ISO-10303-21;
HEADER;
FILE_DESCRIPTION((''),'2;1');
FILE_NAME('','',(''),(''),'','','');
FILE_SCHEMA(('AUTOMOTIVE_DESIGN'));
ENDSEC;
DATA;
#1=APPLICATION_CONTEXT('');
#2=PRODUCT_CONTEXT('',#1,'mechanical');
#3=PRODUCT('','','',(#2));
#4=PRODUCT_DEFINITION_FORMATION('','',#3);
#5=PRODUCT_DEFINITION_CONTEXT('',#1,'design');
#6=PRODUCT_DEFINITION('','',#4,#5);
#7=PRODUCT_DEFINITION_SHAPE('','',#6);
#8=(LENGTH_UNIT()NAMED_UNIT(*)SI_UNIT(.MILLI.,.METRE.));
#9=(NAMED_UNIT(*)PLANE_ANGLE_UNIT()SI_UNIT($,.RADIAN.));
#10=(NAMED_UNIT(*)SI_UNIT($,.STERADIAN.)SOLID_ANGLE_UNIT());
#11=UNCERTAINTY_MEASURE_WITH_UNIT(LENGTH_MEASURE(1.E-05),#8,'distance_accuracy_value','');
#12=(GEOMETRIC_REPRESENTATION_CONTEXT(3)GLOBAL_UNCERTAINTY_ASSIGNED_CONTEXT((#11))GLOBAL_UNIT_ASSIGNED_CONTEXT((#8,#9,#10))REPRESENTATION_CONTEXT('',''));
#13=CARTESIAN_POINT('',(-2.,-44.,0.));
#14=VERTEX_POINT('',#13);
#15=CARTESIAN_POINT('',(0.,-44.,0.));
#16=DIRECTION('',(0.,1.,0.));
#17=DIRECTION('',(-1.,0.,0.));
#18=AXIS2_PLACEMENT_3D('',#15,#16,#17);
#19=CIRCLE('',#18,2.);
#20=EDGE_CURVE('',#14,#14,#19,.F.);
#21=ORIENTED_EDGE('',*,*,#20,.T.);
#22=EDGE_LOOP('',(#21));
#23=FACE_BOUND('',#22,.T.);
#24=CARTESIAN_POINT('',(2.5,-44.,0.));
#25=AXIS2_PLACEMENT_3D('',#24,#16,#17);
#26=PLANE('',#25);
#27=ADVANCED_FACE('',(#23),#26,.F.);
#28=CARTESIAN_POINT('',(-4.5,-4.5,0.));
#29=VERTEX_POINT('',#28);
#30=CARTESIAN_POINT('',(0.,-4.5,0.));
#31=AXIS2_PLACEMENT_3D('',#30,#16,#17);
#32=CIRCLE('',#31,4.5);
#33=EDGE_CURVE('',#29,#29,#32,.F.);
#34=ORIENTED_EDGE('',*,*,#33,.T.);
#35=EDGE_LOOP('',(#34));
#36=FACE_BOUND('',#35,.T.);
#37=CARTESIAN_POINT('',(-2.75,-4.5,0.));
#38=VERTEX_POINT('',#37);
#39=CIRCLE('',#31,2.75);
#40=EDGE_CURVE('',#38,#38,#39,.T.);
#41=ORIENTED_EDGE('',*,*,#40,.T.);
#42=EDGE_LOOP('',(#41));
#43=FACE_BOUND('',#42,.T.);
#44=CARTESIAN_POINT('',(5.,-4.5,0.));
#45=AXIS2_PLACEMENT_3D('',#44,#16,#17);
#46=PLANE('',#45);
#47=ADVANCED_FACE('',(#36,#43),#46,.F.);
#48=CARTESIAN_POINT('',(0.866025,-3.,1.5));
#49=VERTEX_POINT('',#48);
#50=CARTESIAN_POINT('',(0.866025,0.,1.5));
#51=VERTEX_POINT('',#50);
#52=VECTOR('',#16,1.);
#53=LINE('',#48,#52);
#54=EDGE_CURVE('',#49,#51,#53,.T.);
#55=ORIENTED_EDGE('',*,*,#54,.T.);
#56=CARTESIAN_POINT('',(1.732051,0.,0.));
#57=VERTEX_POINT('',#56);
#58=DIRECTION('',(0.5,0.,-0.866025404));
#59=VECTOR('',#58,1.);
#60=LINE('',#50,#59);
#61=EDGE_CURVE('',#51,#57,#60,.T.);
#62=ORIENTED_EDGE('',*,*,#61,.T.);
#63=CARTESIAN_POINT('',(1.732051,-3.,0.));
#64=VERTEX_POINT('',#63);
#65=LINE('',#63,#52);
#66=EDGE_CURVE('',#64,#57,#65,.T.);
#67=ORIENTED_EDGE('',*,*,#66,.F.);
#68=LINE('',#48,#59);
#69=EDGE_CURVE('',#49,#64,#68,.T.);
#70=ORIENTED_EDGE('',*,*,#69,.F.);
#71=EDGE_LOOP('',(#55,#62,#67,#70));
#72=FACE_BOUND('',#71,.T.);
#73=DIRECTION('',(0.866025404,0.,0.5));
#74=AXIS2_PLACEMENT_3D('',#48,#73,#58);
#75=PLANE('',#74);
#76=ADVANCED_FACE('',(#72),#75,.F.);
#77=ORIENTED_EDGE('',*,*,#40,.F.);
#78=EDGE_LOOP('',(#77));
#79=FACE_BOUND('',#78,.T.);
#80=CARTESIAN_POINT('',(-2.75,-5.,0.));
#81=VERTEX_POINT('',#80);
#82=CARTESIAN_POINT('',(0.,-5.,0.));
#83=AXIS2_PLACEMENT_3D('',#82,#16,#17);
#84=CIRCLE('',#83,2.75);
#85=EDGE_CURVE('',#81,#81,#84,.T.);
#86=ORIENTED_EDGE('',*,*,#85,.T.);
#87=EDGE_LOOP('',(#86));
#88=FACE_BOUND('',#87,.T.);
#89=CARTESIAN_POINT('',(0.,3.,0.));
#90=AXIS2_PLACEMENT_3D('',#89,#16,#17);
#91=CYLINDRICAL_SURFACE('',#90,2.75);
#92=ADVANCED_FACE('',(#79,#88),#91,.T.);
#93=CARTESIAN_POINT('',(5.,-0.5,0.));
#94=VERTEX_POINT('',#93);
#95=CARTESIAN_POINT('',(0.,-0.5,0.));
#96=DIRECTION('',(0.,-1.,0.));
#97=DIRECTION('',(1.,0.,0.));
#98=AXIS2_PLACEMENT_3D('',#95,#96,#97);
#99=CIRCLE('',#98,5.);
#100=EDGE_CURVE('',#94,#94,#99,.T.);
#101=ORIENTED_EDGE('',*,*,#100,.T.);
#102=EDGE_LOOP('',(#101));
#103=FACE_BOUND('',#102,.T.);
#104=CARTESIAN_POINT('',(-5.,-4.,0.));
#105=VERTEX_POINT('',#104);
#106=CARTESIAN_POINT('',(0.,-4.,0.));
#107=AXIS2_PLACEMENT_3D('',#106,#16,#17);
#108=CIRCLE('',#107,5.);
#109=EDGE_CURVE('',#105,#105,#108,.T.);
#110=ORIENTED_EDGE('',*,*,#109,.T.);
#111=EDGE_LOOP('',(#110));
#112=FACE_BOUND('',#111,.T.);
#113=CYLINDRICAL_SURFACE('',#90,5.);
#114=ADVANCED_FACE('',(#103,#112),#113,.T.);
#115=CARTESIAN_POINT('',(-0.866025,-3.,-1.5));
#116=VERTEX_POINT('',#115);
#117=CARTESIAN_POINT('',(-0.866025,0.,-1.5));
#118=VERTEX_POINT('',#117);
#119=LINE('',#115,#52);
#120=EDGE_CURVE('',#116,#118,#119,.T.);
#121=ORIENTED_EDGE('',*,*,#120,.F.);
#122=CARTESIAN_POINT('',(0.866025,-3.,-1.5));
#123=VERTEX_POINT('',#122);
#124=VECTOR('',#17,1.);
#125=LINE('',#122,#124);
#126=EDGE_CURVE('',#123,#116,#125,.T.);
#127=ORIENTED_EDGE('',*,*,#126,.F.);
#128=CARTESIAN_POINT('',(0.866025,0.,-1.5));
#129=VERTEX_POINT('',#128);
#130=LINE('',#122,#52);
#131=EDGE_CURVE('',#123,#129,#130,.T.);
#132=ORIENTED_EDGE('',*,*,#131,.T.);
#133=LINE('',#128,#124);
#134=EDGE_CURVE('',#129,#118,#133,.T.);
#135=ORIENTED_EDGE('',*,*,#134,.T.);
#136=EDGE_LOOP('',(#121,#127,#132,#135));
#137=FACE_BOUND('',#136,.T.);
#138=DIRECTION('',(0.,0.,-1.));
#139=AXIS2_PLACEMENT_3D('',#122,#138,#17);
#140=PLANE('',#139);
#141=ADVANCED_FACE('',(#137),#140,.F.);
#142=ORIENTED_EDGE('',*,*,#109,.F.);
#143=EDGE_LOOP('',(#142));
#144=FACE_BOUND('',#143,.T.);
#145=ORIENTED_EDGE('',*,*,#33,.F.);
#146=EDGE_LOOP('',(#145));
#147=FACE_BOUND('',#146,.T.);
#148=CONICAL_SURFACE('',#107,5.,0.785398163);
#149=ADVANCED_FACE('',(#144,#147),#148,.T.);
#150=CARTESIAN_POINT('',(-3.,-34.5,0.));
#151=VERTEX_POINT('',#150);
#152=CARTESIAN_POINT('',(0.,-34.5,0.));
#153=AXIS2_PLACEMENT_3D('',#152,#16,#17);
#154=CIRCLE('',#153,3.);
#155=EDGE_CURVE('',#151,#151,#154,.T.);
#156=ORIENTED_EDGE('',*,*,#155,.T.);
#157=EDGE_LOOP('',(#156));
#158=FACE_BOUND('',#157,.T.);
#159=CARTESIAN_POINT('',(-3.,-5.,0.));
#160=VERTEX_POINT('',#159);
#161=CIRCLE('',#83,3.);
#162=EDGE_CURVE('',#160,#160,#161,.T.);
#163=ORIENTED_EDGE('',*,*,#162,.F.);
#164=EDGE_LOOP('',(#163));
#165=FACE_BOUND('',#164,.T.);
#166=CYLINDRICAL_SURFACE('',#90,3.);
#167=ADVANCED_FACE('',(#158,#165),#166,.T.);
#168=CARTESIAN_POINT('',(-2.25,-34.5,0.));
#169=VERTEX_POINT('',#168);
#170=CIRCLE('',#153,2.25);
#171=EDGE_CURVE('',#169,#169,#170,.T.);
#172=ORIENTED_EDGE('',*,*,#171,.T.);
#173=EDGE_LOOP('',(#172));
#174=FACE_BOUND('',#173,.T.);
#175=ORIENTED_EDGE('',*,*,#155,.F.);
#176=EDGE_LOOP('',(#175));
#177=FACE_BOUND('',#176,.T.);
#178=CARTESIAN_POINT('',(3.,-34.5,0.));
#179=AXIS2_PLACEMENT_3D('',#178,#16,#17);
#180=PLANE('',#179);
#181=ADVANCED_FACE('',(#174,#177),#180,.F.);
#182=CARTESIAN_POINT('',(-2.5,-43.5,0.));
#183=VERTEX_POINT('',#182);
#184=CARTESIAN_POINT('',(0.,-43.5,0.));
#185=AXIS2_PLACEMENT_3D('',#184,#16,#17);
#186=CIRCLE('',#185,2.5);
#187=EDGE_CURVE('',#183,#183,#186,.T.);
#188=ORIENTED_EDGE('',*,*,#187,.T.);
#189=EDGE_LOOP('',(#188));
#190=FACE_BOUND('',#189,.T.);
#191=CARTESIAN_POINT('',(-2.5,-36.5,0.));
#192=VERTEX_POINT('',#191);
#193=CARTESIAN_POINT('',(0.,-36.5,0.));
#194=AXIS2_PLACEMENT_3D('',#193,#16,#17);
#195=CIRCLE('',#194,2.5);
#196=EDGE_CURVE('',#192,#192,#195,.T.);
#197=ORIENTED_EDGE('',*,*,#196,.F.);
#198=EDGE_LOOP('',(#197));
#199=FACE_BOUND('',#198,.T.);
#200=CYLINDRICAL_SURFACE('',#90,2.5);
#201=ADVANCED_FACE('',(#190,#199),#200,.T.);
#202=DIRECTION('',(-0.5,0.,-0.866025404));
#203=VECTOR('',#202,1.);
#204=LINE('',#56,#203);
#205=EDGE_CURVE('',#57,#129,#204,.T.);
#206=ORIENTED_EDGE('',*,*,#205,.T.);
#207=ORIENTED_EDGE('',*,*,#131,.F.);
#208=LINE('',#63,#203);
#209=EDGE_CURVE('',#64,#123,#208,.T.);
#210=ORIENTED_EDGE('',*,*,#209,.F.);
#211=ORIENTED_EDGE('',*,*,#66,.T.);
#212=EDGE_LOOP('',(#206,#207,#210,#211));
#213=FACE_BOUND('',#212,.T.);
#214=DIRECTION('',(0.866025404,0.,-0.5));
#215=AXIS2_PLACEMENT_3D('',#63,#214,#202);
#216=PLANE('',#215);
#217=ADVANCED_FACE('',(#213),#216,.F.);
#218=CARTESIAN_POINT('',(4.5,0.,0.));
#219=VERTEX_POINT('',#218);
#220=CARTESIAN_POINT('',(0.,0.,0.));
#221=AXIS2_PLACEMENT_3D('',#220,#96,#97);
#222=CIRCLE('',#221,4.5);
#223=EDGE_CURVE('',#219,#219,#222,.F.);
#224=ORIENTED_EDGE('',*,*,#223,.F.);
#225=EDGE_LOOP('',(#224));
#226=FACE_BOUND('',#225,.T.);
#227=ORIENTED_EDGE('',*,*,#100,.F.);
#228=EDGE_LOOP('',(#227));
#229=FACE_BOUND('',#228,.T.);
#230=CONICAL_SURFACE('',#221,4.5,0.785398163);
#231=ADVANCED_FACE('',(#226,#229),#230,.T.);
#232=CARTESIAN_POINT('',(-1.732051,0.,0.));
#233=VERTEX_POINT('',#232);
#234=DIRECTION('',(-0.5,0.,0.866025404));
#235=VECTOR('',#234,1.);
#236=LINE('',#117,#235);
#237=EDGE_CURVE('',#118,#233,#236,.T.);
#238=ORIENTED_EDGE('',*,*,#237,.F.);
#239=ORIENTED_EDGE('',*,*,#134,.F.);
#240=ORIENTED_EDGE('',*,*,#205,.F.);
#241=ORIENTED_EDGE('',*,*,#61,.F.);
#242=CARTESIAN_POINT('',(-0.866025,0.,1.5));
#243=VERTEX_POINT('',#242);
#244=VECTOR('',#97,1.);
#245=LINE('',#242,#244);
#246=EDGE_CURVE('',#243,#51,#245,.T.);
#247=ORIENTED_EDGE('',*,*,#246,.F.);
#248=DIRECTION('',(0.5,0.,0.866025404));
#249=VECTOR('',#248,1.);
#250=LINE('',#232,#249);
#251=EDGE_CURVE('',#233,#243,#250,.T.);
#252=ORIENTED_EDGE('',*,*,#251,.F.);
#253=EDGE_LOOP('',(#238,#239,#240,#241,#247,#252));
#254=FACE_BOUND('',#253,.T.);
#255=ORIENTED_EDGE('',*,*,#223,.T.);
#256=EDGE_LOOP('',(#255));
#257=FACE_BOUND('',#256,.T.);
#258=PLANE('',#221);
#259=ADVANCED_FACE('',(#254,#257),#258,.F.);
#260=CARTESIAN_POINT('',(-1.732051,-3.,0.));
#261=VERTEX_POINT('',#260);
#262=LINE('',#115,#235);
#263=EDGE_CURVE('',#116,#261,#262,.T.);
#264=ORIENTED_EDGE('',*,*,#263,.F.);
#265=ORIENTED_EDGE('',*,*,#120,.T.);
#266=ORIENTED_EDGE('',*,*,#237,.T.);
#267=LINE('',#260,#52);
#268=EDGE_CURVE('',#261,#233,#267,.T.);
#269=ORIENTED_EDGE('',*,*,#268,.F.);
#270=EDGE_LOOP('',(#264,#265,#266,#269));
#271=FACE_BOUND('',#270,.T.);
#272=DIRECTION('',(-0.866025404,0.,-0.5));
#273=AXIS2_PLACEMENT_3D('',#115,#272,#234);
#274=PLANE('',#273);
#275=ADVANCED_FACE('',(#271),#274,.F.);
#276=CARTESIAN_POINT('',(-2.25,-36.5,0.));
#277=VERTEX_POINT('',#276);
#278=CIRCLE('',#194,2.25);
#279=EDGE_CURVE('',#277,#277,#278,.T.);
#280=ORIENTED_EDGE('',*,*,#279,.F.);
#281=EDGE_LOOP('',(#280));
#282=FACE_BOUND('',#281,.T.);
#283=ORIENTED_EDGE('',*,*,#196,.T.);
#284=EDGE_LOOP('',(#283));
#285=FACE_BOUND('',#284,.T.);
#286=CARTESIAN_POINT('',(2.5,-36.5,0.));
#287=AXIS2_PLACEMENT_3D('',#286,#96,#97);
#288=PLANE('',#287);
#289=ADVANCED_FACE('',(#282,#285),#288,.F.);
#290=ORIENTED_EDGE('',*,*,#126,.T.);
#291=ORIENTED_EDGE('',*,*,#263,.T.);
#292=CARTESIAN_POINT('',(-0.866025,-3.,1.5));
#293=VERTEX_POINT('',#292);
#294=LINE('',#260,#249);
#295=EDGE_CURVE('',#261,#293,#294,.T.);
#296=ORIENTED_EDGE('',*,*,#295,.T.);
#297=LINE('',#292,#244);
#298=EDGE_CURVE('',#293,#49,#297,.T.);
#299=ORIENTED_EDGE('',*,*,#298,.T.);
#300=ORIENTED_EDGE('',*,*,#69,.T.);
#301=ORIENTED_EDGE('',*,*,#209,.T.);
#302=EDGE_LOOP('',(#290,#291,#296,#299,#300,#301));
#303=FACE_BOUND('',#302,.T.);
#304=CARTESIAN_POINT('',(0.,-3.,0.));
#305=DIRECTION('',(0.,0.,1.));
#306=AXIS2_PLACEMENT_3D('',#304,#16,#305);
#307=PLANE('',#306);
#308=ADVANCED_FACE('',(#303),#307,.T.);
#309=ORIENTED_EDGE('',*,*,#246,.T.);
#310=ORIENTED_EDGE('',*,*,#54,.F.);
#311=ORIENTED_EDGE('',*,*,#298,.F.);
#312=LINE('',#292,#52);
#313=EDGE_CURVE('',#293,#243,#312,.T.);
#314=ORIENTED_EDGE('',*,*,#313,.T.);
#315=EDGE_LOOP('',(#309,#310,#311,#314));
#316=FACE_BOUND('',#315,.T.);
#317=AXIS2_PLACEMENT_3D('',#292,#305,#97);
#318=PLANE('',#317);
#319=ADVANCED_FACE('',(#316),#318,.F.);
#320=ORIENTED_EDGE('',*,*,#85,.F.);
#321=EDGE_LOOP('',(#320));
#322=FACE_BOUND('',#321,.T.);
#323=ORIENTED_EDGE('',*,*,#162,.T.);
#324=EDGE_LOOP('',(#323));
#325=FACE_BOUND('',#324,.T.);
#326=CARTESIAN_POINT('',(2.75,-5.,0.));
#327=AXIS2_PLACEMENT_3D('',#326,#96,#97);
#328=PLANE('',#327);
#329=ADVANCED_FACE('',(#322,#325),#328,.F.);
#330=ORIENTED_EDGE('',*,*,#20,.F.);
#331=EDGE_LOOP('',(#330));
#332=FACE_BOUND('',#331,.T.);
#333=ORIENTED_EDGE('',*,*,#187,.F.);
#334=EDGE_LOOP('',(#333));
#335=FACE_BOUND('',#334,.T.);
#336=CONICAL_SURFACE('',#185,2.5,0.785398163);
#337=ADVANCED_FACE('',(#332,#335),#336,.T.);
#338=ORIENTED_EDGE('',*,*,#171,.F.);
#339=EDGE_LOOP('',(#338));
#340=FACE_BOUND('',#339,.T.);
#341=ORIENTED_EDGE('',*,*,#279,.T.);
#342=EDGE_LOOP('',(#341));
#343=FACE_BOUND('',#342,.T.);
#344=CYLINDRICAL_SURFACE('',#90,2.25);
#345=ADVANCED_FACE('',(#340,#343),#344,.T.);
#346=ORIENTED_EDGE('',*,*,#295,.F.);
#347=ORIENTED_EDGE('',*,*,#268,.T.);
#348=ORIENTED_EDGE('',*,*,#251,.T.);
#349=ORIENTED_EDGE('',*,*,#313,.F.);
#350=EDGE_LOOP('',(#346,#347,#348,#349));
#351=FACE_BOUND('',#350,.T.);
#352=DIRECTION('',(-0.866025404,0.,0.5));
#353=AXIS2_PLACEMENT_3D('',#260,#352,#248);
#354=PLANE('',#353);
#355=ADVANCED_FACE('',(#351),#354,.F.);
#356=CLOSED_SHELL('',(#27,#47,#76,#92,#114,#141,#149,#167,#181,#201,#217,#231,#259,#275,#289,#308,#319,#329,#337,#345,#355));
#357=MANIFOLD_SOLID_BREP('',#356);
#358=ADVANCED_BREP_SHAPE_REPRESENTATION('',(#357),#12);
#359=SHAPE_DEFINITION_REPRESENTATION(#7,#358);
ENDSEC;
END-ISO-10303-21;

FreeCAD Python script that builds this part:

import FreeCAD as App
import Part
import Sketcher
Q = App.Units.Quantity


def edges_at(feature, points):
    """Names of the edges that pass closest to the given points."""
    edges = feature.Shape.Edges
    near = lambda p: min(range(len(edges)), key=lambda i: edges[i].distToShape(Part.Vertex(*p))[0])
    return sorted({f"Edge{near(p) + 1}" for p in points})

doc = App.newDocument("Part")
params = doc.addObject("Spreadsheet::Sheet", "Params")
for row, (alias, value) in enumerate([
    ("sketch1_width", "5 mm"),
    ("sketch1_height", "44 mm"),
    ("sketch1_height2", "2 mm"),
    ("sketch1_width2", "2.5 mm"),
    ("sketch1_height3", "7.5 mm"),
    ("revolution_angle", "360 deg"),
    ("chamfer_size", "0.5 mm"),
    ("pocket1_length", "3 mm"),
], start=1):
    params.set(f"A{row}", alias)
    params.set(f"B{row}", "=" + value)
    params.setAlias(f"B{row}", alias)

body = doc.addObject("PartDesign::Body", "Body")

sketch1 = body.newObject("Sketcher::SketchObject", "Sketch")
sketch1.AttachmentSupport = (doc.getObject("XY_Plane"), [""])
sketch1.MapMode = "FlatFace"
sketch1.addGeometry([
    Part.LineSegment(App.Vector(5, 0, 0), App.Vector(0, 0, 0)),
    Part.LineSegment(App.Vector(0, 0, 0), App.Vector(0, -44, 0)),
    Part.LineSegment(App.Vector(0, -44, 0), App.Vector(2.5, -44, 0)),
    Part.LineSegment(App.Vector(2.5, -44, 0), App.Vector(2.5, -36.5, 0)),
    Part.LineSegment(App.Vector(2.5, -36.5, 0), App.Vector(2.25, -36.5, 0)),
    Part.LineSegment(App.Vector(2.25, -36.5, 0), App.Vector(2.25, -34.5, 0)),
    Part.LineSegment(App.Vector(2.25, -34.5, 0), App.Vector(3, -34.5, 0)),
    Part.LineSegment(App.Vector(3, -34.5, 0), App.Vector(3, -5, 0)),
    Part.LineSegment(App.Vector(3, -5, 0), App.Vector(2.75, -5, 0)),
    Part.LineSegment(App.Vector(2.75, -5, 0), App.Vector(2.75, -4.5, 0)),
    Part.LineSegment(App.Vector(2.75, -4.5, 0), App.Vector(5, -4.5, 0)),
    Part.LineSegment(App.Vector(5, -4.5, 0), App.Vector(5, 0, 0)),
], False)
sketch1.addConstraint([
    Sketcher.Constraint("Coincident", 0, 2, 1, 1),
    Sketcher.Constraint("Coincident", 1, 2, 2, 1),
    Sketcher.Constraint("Coincident", 2, 2, 3, 1),
    Sketcher.Constraint("Coincident", 3, 2, 4, 1),
    Sketcher.Constraint("Coincident", 4, 2, 5, 1),
    Sketcher.Constraint("Coincident", 5, 2, 6, 1),
    Sketcher.Constraint("Coincident", 6, 2, 7, 1),
    Sketcher.Constraint("Coincident", 7, 2, 8, 1),
    Sketcher.Constraint("Coincident", 8, 2, 9, 1),
    Sketcher.Constraint("Coincident", 9, 2, 10, 1),
    Sketcher.Constraint("Coincident", 10, 2, 11, 1),
    Sketcher.Constraint("Coincident", 11, 2, 0, 1),
    Sketcher.Constraint("Horizontal", 0),
    Sketcher.Constraint("Vertical", 1),
    Sketcher.Constraint("Horizontal", 2),
    Sketcher.Constraint("Vertical", 3),
    Sketcher.Constraint("Horizontal", 4),
    Sketcher.Constraint("Vertical", 5),
    Sketcher.Constraint("Horizontal", 6),
    Sketcher.Constraint("Vertical", 7),
    Sketcher.Constraint("Horizontal", 8),
    Sketcher.Constraint("Vertical", 9),
    Sketcher.Constraint("Horizontal", 10),
    Sketcher.Constraint("Vertical", 11),
    Sketcher.Constraint("Coincident", 0, 2, -1, 1),
    Sketcher.Constraint("Equal", 4, 8),
    Sketcher.Constraint("DistanceX", 0, 2, 0, 1, Q("5 mm")),
    Sketcher.Constraint("DistanceY", 1, 2, 1, 1, Q("44 mm")),
    Sketcher.Constraint("DistanceY", 5, 1, 5, 2, Q("2 mm")),
    Sketcher.Constraint("DistanceX", 2, 1, 2, 2, Q("2.5 mm")),
    Sketcher.Constraint("DistanceY", 3, 1, 3, 2, Q("7.5 mm")),
    Sketcher.Constraint("DistanceY", 7, 1, 7, 2, Q("29.5 mm")),
    Sketcher.Constraint("DistanceY", 9, 1, 9, 2, Q("0.5 mm")),
    Sketcher.Constraint("DistanceX", -1, 1, 6, 2, Q("3 mm")),
    Sketcher.Constraint("DistanceX", 4, 2, 4, 1, Q("0.25 mm")),
])
sketch1.setExpression("Constraints[26]", "Params.sketch1_width")
sketch1.setExpression("Constraints[27]", "Params.sketch1_height")
sketch1.setExpression("Constraints[28]", "Params.sketch1_height2")
sketch1.setExpression("Constraints[29]", "Params.sketch1_width2")
sketch1.setExpression("Constraints[30]", "Params.sketch1_height3")
revolution = body.newObject("PartDesign::Revolution", "Revolution")
revolution.Profile = sketch1
revolution.ReferenceAxis = (sketch1, ["V_Axis"])
revolution.setExpression("Angle", "Params.revolution_angle")
doc.recompute()

chamfer = body.newObject("PartDesign::Chamfer", "Chamfer")
chamfer.Base = (revolution, edges_at(revolution, [(5, -4.5, 0), (5, 0, 0), (2.5, -44, 0)]))
chamfer.setExpression("Size", "Params.chamfer_size")

sketch2 = body.newObject("Sketcher::SketchObject", "Sketch001")
sketch2.AttachmentSupport = (doc.getObject("XZ_Plane"), [""])
sketch2.MapMode = "FlatFace"
sketch2.addGeometry([
    Part.LineSegment(App.Vector(1.7, 0, 0), App.Vector(0.9, -1.5, 0)),
    Part.LineSegment(App.Vector(0.9, -1.5, 0), App.Vector(-0.9, -1.5, 0)),
    Part.LineSegment(App.Vector(-0.9, -1.5, 0), App.Vector(-1.7, 0, 0)),
    Part.LineSegment(App.Vector(-1.7, 0, 0), App.Vector(-0.9, 1.5, 0)),
    Part.LineSegment(App.Vector(-0.9, 1.5, 0), App.Vector(0.9, 1.5, 0)),
    Part.LineSegment(App.Vector(0.9, 1.5, 0), App.Vector(1.7, 0, 0)),
], False)
sketch2.addConstraint([
    Sketcher.Constraint("Coincident", 0, 2, 1, 1),
    Sketcher.Constraint("Coincident", 1, 2, 2, 1),
    Sketcher.Constraint("Coincident", 2, 2, 3, 1),
    Sketcher.Constraint("Coincident", 3, 2, 4, 1),
    Sketcher.Constraint("Coincident", 4, 2, 5, 1),
    Sketcher.Constraint("Coincident", 5, 2, 0, 1),
    Sketcher.Constraint("Horizontal", 1),
    Sketcher.Constraint("Horizontal", 4),
    Sketcher.Constraint("Symmetric", 0, 2, 3, 2, -1, 1),
    Sketcher.Constraint("Symmetric", 2, 2, 5, 2, -1, 1),
    Sketcher.Constraint("PointOnObject", 2, 2, -1),
    Sketcher.Constraint("Parallel", 2, 5),
    Sketcher.Constraint("Vertical", 1, 2, 3, 2),
    Sketcher.Constraint("Angle", 0, Q("-120 deg")),
    Sketcher.Constraint("DistanceY", 1, 2, 3, 2, Q("3 mm")),
    Sketcher.Constraint("DistanceX", 1, 2, 1, 1, Q("1.732051 mm")),
])
pocket1 = body.newObject("PartDesign::Pocket", "Pocket")
pocket1.Profile = sketch2
pocket1.setExpression("Length", "Params.pocket1_length")
pocket1.Reversed = True

doc.recompute()
